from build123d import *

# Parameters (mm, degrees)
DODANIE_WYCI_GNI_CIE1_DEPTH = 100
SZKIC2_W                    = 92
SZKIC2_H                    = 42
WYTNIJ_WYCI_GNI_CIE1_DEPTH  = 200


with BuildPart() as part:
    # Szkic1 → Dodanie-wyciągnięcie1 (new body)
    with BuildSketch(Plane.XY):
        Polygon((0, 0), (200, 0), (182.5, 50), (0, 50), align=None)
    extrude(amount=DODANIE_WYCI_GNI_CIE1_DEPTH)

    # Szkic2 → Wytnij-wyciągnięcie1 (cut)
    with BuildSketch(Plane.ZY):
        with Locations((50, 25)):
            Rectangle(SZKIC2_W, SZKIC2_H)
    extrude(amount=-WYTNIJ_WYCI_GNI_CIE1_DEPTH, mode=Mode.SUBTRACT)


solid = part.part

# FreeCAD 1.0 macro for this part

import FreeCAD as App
import Part
import Sketcher
from FreeCAD import Vector

doc = App.newDocument("Part")
body = doc.addObject("PartDesign::Body", "Body")

sketch1 = body.newObject("Sketcher::SketchObject", "Sketch")
sketch1.AttachmentSupport = (doc.getObject("XY_Plane"), [""])
sketch1.MapMode = "FlatFace"
sketch1.addGeometry(Part.LineSegment(Vector(0, 0, 0), Vector(200, 0, 0)), False)
sketch1.addGeometry(Part.LineSegment(Vector(200, 0, 0), Vector(182, 50, 0)), False)
sketch1.addGeometry(Part.LineSegment(Vector(182, 50, 0), Vector(0, 50, 0)), False)
sketch1.addGeometry(Part.LineSegment(Vector(0, 50, 0), Vector(0, 0, 0)), False)
sketch1.addConstraint(Sketcher.Constraint("Coincident", 0, 2, 1, 1))
sketch1.addConstraint(Sketcher.Constraint("Coincident", 1, 2, 2, 1))
sketch1.addConstraint(Sketcher.Constraint("Coincident", 2, 2, 3, 1))
sketch1.addConstraint(Sketcher.Constraint("Coincident", 3, 2, 0, 1))
sketch1.addConstraint(Sketcher.Constraint("Horizontal", 0))
sketch1.addConstraint(Sketcher.Constraint("Horizontal", 2))
sketch1.addConstraint(Sketcher.Constraint("Vertical", 3))
sketch1.addConstraint(Sketcher.Constraint("Coincident", 3, 2, -1, 1))
sketch1.addConstraint(Sketcher.Constraint("DistanceX", 0, 1, 0, 2, 200.0))
sketch1.addConstraint(Sketcher.Constraint("DistanceY", 3, 2, 3, 1, 50.0))
sketch1.addConstraint(Sketcher.Constraint("DistanceX", 2, 2, 2, 1, 182.5))
pad1 = body.newObject("PartDesign::Pad", "Pad")
pad1.Profile = sketch1
pad1.Length = 100

sketch2 = body.newObject("Sketcher::SketchObject", "Sketch001")
sketch2.AttachmentSupport = (doc.getObject("YZ_Plane"), [""])
sketch2.MapMode = "FlatFace"
sketch2.addGeometry(Part.LineSegment(Vector(46, 4, 0), Vector(4, 4, 0)), False)
sketch2.addGeometry(Part.LineSegment(Vector(4, 4, 0), Vector(4, 96, 0)), False)
sketch2.addGeometry(Part.LineSegment(Vector(4, 96, 0), Vector(46, 96, 0)), False)
sketch2.addGeometry(Part.LineSegment(Vector(46, 96, 0), Vector(46, 4, 0)), False)
sketch2.addConstraint(Sketcher.Constraint("Coincident", 0, 2, 1, 1))
sketch2.addConstraint(Sketcher.Constraint("Coincident", 1, 2, 2, 1))
sketch2.addConstraint(Sketcher.Constraint("Coincident", 2, 2, 3, 1))
sketch2.addConstraint(Sketcher.Constraint("Coincident", 3, 2, 0, 1))
sketch2.addConstraint(Sketcher.Constraint("Horizontal", 0))
sketch2.addConstraint(Sketcher.Constraint("Vertical", 1))
sketch2.addConstraint(Sketcher.Constraint("Horizontal", 2))
sketch2.addConstraint(Sketcher.Constraint("Vertical", 3))
sketch2.addConstraint(Sketcher.Constraint("DistanceX", 0, 2, 0, 1, 42.0))
sketch2.addConstraint(Sketcher.Constraint("DistanceY", 1, 1, 1, 2, 92.0))
sketch2.addConstraint(Sketcher.Constraint("DistanceX", -1, 1, 0, 2, 4.0))
sketch2.addConstraint(Sketcher.Constraint("DistanceY", -1, 1, 0, 2, 4.0))
pocket1 = body.newObject("PartDesign::Pocket", "Pocket")
pocket1.Profile = sketch2
pocket1.Length = 200
pocket1.Reversed = True

doc.recompute()
